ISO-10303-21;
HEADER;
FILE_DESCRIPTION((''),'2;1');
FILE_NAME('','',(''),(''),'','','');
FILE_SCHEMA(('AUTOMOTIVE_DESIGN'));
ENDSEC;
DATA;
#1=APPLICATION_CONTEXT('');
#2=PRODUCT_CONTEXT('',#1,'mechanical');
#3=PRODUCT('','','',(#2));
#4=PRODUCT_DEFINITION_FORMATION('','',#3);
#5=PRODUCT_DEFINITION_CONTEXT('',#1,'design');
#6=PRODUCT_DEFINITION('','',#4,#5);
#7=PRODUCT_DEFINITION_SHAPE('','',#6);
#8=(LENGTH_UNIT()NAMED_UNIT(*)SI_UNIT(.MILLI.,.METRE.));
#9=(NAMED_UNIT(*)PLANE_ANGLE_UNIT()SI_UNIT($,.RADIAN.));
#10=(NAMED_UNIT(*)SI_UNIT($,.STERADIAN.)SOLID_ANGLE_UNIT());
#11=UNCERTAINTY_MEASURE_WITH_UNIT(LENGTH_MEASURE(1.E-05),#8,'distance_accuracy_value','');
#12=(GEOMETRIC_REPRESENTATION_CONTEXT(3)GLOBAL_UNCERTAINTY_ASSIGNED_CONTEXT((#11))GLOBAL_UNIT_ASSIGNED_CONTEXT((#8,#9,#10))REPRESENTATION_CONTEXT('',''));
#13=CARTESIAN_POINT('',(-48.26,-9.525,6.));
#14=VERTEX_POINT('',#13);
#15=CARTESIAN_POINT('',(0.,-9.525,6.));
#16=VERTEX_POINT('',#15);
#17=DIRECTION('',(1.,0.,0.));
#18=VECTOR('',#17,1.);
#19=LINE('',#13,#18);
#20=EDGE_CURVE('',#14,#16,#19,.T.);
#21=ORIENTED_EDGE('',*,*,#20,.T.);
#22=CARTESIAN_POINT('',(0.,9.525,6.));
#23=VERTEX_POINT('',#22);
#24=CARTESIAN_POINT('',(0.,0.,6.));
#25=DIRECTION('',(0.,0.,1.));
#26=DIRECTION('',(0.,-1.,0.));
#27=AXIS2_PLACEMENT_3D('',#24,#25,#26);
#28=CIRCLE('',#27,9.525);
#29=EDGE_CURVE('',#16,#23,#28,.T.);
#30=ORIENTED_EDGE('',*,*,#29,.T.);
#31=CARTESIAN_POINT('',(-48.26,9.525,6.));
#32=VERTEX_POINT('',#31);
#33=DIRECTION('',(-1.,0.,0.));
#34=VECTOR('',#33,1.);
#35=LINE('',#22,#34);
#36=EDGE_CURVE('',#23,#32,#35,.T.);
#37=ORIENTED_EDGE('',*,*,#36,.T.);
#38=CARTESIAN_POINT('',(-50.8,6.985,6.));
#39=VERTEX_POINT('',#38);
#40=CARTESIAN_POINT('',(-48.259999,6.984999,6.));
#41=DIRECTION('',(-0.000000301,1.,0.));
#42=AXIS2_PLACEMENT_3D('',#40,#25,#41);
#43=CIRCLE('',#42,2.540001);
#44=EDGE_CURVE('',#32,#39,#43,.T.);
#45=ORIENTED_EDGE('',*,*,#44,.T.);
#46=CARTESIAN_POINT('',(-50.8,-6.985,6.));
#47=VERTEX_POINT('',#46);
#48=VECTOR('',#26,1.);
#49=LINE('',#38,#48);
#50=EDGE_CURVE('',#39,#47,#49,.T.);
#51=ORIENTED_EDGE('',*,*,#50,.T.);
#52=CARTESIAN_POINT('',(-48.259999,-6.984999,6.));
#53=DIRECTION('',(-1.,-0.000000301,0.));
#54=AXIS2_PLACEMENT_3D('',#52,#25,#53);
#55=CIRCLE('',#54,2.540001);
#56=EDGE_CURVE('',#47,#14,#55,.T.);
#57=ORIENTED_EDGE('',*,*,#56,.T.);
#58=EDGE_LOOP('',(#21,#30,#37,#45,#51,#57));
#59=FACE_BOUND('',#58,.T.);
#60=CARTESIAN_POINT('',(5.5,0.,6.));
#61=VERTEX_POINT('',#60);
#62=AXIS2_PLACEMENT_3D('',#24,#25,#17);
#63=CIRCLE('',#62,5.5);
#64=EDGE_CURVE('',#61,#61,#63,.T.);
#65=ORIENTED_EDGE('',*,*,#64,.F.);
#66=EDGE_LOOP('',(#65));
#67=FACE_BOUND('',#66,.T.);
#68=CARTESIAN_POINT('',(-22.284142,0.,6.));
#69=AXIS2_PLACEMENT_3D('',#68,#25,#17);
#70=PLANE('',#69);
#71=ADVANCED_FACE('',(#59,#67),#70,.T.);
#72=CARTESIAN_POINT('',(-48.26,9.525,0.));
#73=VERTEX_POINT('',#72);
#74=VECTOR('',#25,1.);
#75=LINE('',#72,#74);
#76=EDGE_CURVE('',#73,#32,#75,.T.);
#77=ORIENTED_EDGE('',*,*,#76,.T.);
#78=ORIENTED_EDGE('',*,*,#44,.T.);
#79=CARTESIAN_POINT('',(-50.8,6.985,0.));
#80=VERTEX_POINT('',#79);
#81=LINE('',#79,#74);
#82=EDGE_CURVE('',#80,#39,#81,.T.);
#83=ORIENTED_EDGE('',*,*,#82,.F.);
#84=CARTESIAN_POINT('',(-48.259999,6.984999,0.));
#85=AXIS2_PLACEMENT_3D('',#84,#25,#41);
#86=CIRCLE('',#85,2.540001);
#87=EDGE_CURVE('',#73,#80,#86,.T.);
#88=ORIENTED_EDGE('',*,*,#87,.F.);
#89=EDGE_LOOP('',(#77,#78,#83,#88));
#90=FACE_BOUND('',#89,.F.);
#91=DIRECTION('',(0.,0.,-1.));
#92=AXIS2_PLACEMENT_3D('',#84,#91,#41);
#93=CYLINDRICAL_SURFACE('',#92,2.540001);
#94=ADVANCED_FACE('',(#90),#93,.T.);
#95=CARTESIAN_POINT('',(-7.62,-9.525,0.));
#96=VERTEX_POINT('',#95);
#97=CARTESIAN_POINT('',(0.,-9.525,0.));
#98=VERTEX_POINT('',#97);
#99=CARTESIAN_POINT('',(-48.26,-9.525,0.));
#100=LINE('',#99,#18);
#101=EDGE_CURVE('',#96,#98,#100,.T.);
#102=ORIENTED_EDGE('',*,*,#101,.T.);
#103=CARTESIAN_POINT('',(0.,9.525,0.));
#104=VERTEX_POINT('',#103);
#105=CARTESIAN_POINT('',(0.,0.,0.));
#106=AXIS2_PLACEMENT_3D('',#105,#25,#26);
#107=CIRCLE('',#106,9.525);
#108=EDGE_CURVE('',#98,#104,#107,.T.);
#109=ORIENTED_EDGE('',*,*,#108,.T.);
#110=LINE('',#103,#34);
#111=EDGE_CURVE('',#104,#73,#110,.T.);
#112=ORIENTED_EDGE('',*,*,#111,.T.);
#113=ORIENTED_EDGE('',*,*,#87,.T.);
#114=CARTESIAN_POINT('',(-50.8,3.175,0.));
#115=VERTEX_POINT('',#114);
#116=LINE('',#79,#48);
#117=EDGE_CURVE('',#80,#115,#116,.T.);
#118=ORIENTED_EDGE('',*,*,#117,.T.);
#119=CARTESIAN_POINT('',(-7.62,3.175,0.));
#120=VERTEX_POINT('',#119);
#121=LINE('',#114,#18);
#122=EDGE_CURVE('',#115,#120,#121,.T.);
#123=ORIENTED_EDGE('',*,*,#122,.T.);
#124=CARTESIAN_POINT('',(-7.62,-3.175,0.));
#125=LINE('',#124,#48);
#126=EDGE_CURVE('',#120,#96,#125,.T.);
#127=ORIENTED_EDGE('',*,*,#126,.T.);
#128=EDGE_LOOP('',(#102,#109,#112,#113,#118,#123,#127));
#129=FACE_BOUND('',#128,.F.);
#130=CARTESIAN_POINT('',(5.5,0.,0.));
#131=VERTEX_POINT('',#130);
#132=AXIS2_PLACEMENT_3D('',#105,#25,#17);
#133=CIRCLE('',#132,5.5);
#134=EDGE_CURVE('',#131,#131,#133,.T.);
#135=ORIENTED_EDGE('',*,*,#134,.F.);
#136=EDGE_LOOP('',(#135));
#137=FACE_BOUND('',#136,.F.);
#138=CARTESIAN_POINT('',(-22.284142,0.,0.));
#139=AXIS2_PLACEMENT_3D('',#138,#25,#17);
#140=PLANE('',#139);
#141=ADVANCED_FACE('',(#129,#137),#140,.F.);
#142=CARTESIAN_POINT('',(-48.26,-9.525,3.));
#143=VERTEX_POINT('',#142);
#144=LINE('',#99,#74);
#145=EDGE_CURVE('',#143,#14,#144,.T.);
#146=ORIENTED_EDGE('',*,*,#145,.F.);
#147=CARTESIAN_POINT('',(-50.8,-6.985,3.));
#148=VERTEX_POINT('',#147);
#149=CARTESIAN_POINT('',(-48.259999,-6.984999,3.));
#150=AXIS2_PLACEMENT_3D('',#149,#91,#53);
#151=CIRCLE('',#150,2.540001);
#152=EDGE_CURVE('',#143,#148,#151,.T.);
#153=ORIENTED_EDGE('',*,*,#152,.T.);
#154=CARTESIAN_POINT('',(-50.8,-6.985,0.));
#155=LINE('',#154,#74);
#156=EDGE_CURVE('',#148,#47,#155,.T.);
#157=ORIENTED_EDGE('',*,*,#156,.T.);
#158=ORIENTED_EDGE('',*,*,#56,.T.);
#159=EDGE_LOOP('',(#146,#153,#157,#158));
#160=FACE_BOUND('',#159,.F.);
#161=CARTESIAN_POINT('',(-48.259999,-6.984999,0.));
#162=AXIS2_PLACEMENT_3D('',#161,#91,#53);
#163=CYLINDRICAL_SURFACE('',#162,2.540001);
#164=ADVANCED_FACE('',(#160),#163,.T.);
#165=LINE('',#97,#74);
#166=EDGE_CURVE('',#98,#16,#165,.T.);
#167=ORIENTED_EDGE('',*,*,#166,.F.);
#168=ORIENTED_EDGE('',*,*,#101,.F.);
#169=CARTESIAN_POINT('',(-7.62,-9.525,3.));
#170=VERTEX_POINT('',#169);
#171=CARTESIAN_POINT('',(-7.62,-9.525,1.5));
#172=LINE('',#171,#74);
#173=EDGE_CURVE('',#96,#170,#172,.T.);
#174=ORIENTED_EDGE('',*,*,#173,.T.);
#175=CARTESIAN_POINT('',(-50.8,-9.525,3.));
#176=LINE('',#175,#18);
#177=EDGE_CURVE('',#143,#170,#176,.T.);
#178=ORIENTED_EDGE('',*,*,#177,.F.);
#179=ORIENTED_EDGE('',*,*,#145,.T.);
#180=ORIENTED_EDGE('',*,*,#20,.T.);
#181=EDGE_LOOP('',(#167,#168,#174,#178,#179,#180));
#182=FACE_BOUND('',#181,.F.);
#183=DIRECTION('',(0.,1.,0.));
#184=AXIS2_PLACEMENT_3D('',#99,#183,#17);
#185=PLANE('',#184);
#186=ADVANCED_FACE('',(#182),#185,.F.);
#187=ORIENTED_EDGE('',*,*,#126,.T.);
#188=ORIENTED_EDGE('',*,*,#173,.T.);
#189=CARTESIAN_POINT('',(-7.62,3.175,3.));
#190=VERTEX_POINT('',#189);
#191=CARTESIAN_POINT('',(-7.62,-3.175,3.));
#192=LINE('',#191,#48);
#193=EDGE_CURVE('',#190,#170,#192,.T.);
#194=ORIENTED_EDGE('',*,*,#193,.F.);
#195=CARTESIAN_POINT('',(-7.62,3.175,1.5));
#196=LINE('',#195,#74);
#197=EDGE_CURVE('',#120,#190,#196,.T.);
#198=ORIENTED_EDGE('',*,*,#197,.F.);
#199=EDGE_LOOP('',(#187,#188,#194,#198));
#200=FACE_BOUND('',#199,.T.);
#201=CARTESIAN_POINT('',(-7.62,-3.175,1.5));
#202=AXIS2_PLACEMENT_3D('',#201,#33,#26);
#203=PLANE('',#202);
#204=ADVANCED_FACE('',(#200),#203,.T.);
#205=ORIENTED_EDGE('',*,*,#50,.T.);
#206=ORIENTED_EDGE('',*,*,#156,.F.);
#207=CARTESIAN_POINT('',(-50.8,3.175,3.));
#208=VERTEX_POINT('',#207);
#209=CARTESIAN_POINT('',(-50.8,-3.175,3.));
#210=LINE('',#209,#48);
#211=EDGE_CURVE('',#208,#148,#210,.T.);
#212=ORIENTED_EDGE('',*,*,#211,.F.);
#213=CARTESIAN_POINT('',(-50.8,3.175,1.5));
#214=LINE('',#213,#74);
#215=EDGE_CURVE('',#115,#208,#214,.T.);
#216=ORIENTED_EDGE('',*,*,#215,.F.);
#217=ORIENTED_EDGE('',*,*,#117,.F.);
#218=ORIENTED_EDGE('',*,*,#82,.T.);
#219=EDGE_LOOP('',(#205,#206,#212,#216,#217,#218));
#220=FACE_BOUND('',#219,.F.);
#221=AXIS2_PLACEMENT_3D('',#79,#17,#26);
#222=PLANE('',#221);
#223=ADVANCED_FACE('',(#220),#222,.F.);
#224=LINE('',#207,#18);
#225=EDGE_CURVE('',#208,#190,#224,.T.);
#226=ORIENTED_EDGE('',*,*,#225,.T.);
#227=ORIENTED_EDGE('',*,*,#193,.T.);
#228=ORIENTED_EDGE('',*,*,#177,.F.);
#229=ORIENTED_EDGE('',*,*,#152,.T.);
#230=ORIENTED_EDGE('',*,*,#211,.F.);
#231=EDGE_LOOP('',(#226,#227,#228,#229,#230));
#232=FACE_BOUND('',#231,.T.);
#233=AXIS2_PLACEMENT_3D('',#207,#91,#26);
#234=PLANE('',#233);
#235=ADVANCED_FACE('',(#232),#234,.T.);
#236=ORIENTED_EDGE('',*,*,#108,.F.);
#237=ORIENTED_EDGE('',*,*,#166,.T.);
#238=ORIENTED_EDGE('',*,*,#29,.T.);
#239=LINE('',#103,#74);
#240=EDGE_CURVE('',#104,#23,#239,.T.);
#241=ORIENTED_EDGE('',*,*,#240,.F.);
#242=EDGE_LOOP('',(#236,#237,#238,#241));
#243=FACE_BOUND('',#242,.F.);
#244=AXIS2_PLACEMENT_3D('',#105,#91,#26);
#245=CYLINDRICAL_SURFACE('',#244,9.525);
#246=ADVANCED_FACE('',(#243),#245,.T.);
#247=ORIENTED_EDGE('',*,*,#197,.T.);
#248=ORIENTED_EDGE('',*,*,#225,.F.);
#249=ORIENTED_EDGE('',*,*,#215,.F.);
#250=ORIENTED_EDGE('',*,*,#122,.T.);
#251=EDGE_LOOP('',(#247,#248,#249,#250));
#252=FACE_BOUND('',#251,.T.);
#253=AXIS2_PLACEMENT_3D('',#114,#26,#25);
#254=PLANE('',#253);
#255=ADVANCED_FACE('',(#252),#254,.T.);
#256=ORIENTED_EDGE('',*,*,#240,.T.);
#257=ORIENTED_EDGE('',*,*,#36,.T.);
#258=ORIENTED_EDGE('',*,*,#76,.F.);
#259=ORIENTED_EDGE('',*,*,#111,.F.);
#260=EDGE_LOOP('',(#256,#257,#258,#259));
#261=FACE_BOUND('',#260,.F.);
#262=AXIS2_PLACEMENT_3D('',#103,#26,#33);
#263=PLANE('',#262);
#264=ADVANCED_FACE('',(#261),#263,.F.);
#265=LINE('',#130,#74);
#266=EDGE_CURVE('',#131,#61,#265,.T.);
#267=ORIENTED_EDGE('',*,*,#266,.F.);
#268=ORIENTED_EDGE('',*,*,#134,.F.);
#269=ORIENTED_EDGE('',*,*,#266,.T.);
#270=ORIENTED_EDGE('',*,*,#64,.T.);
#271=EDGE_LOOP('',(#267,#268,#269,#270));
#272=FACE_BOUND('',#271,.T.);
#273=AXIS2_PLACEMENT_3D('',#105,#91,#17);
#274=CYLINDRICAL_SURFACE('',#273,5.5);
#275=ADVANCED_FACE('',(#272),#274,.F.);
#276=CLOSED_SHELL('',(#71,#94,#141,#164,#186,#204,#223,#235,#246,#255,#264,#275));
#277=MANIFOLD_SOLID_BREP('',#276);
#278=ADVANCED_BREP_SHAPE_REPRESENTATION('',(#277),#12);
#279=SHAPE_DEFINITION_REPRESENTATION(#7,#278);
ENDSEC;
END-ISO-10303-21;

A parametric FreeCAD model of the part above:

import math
import FreeCAD as App
import Part
import Sketcher

V = App.Vector
Q = App.Units.Quantity


def add_polygon(sketch, points):
    """Adds a closed chain of lines whose ends are joined by coincident constraints."""
    first, n = sketch.GeometryCount, len(points)
    for a, b in zip(points, points[1:] + points[:1]):
        sketch.addGeometry(Part.LineSegment(App.Vector(*a, 0), App.Vector(*b, 0)), False)
    for i in range(n):
        sketch.addConstraint(Sketcher.Constraint("Coincident", first + i, 2, first + (i + 1) % n, 1))

doc = App.newDocument("Part")
body = doc.addObject("PartDesign::Body", "Body")

sketch1 = body.newObject("Sketcher::SketchObject", "Sketch")
sketch1.AttachmentSupport = (doc.getObject("XY_Plane"), [""])
sketch1.MapMode = "FlatFace"
sketch1.addGeometry([
    Part.LineSegment(V(-48.26, -9.525, 0), V(0, -9.525, 0)),
    Part.ArcOfCircle(Part.Circle(V(0, 0, 0), V(0, 0, 1), 9.525), math.radians(-90), math.radians(90)),
    Part.LineSegment(V(0, 9.525, 0), V(-48.26, 9.525, 0)),
    Part.ArcOfCircle(Part.Circle(V(-48.259999, 6.984999, 0), V(0, 0, 1), 2.540001), math.radians(90.000017), math.radians(179.999983)),
    Part.LineSegment(V(-50.8, 6.985, 0), V(-50.8, -6.985, 0)),
    Part.ArcOfCircle(Part.Circle(V(-48.259999, -6.984999, 0), V(0, 0, 1), 2.540001), math.radians(-179.999983), math.radians(-90.000017)),
    Part.Circle(V(0, 0, 0), V(0, 0, 1), 5.5),
], False)
sketch1.addConstraint([
    Sketcher.Constraint("Tangent", 0, 2, 1, 1),
    Sketcher.Constraint("Tangent", 1, 2, 2, 1),
    Sketcher.Constraint("Tangent", 2, 2, 3, 1),
    Sketcher.Constraint("Tangent", 3, 2, 4, 1),
    Sketcher.Constraint("Tangent", 4, 2, 5, 1),
    Sketcher.Constraint("Tangent", 5, 2, 0, 1),
    Sketcher.Constraint("Horizontal", 0),
    Sketcher.Constraint("Horizontal", 2),
    Sketcher.Constraint("Vertical", 4),
    Sketcher.Constraint("Coincident", 1, 3, -1, 1),
    Sketcher.Constraint("Coincident", 6, 3, -1, 1),
    Sketcher.Constraint("Equal", 3, 5),
    Sketcher.Constraint("Radius", 3, Q("0.1 in")),
    Sketcher.Constraint("DistanceX", 0, 1, 0, 2, Q("1.9 in")),
    Sketcher.Constraint("Radius", 1, Q("0.375 in")),
    Sketcher.Constraint("Diameter", 6, 11.0),
])
pad1 = body.newObject("PartDesign::Pad", "Pad")
pad1.Profile = sketch1
pad1.Length = 6

sketch2 = body.newObject("Sketcher::SketchObject", "Sketch001")
sketch2.AttachmentSupport = (doc.getObject("YZ_Plane"), [""])
sketch2.MapMode = "FlatFace"
sketch2.AttachmentOffset = App.Placement(V(0, 0, -2 * 25.4), App.Rotation())
add_polygon(sketch2, [(3.175, 3), (3.175, 0), (-9.525, 0), (-9.525, 3)])
sketch2.addConstraint([
    Sketcher.Constraint("Vertical", 0),
    Sketcher.Constraint("Horizontal", 1),
    Sketcher.Constraint("Vertical", 2),
    Sketcher.Constraint("Horizontal", 3),
    Sketcher.Constraint("PointOnObject", 0, 2, -1),
    Sketcher.Constraint("DistanceX", 1, 2, 1, 1, Q("0.5 in")),
    Sketcher.Constraint("DistanceX", -1, 1, 0, 2, Q("0.125 in")),
    Sketcher.Constraint("DistanceY", 0, 2, 0, 1, 3.0),
])
pocket1 = body.newObject("PartDesign::Pocket", "Pocket")
pocket1.Profile = sketch2
pocket1.Length = Q("1.7 in")
pocket1.Reversed = True

doc.recompute()
